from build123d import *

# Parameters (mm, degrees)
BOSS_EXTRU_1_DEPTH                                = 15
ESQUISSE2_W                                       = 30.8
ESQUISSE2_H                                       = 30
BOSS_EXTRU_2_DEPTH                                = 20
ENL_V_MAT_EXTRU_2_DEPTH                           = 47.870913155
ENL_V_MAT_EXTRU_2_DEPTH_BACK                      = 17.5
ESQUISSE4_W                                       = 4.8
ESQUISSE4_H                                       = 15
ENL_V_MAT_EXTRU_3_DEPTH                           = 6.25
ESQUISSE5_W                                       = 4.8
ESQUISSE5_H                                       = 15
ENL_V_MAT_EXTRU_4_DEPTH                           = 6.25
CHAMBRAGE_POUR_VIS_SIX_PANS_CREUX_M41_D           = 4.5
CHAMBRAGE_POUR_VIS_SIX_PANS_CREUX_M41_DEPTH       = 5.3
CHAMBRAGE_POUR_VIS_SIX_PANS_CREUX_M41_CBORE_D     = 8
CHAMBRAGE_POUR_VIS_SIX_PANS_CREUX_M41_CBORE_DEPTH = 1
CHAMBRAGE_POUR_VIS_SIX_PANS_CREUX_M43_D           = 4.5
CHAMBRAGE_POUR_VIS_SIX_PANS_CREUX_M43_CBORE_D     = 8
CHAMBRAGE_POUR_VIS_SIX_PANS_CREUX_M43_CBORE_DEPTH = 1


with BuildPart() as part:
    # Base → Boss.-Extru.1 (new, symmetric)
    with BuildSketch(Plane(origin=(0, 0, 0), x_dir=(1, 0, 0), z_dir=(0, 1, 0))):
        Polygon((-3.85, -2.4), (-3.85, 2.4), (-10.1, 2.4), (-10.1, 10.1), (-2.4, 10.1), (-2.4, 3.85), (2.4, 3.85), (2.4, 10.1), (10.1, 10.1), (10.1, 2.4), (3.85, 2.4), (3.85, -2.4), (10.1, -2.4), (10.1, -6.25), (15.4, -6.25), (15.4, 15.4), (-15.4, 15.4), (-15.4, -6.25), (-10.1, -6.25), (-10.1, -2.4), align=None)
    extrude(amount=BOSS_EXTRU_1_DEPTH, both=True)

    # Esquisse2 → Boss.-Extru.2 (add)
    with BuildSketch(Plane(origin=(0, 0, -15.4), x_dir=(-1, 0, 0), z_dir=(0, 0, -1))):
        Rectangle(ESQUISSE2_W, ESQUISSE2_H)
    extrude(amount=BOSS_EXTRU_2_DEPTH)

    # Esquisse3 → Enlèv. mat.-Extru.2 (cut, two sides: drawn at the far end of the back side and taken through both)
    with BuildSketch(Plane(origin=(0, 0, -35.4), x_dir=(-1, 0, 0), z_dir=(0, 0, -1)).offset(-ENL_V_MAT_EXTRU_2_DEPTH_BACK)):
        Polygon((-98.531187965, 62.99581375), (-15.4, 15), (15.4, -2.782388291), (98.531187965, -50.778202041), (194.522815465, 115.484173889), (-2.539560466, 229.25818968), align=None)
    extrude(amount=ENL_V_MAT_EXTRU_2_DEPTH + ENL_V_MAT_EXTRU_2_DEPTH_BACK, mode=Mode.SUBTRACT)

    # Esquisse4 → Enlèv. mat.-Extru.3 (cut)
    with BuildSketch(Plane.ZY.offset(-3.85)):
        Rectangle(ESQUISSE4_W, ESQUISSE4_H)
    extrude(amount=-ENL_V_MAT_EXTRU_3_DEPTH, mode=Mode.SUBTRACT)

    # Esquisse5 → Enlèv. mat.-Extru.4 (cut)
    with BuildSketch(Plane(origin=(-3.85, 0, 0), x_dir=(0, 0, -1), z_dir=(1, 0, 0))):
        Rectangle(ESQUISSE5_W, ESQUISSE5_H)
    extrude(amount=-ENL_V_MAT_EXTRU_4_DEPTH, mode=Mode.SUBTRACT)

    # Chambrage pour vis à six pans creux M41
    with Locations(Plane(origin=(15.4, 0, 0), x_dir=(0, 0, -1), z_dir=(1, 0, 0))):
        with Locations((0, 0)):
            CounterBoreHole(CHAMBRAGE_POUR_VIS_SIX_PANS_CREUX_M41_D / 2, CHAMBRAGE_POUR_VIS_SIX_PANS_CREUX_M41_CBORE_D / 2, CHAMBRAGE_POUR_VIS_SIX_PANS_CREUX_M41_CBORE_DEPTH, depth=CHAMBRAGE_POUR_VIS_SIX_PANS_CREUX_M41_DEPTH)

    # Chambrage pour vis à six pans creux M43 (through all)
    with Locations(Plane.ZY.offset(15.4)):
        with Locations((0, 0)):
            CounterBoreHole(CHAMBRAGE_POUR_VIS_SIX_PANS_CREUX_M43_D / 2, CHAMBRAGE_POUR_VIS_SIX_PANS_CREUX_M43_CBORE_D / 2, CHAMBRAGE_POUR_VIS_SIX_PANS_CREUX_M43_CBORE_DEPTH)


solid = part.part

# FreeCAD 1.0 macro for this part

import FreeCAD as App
import Part
import Sketcher
Q = App.Units.Quantity

doc = App.newDocument("Part")
body = doc.addObject("PartDesign::Body", "Body")

sketch1 = doc.addObject("Sketcher::SketchObject", "Sketch")
body.addObject(sketch1)
sketch1.AttachmentSupport = (doc.XZ_Plane, [""])
sketch1.MapMode = "FlatFace"
sketch1.addGeometry([
    Part.LineSegment(App.Vector(-3.9, 2.4, 0), App.Vector(-3.9, -2.4, 0)),
    Part.LineSegment(App.Vector(-3.9, -2.4, 0), App.Vector(-10.1, -2.4, 0)),
    Part.LineSegment(App.Vector(-10.1, -2.4, 0), App.Vector(-10.1, -10.1, 0)),
    Part.LineSegment(App.Vector(-10.1, -10.1, 0), App.Vector(-2.4, -10.1, 0)),
    Part.LineSegment(App.Vector(-2.4, -10.1, 0), App.Vector(-2.4, -3.9, 0)),
    Part.LineSegment(App.Vector(-2.4, -3.9, 0), App.Vector(2.4, -3.9, 0)),
    Part.LineSegment(App.Vector(2.4, -3.9, 0), App.Vector(2.4, -10.1, 0)),
    Part.LineSegment(App.Vector(2.4, -10.1, 0), App.Vector(10.1, -10.1, 0)),
    Part.LineSegment(App.Vector(10.1, -10.1, 0), App.Vector(10.1, -2.4, 0)),
    Part.LineSegment(App.Vector(10.1, -2.4, 0), App.Vector(3.9, -2.4, 0)),
    Part.LineSegment(App.Vector(3.9, -2.4, 0), App.Vector(3.9, 2.4, 0)),
    Part.LineSegment(App.Vector(3.9, 2.4, 0), App.Vector(10.1, 2.4, 0)),
    Part.LineSegment(App.Vector(10.1, 2.4, 0), App.Vector(10.1, 6.2, 0)),
    Part.LineSegment(App.Vector(10.1, 6.2, 0), App.Vector(15.4, 6.2, 0)),
    Part.LineSegment(App.Vector(15.4, 6.2, 0), App.Vector(15.4, -15.4, 0)),
    Part.LineSegment(App.Vector(15.4, -15.4, 0), App.Vector(-15.4, -15.4, 0)),
    Part.LineSegment(App.Vector(-15.4, -15.4, 0), App.Vector(-15.4, 6.2, 0)),
    Part.LineSegment(App.Vector(-15.4, 6.2, 0), App.Vector(-10.1, 6.2, 0)),
    Part.LineSegment(App.Vector(-10.1, 6.2, 0), App.Vector(-10.1, 2.4, 0)),
    Part.LineSegment(App.Vector(-10.1, 2.4, 0), App.Vector(-3.9, 2.4, 0)),
], False)
sketch1.addConstraint([
    Sketcher.Constraint("Coincident", 0, 2, 1, 1),
    Sketcher.Constraint("Coincident", 1, 2, 2, 1),
    Sketcher.Constraint("Coincident", 2, 2, 3, 1),
    Sketcher.Constraint("Coincident", 3, 2, 4, 1),
    Sketcher.Constraint("Coincident", 4, 2, 5, 1),
    Sketcher.Constraint("Coincident", 5, 2, 6, 1),
    Sketcher.Constraint("Coincident", 6, 2, 7, 1),
    Sketcher.Constraint("Coincident", 7, 2, 8, 1),
    Sketcher.Constraint("Coincident", 8, 2, 9, 1),
    Sketcher.Constraint("Coincident", 9, 2, 10, 1),
    Sketcher.Constraint("Coincident", 10, 2, 11, 1),
    Sketcher.Constraint("Coincident", 11, 2, 12, 1),
    Sketcher.Constraint("Coincident", 12, 2, 13, 1),
    Sketcher.Constraint("Coincident", 13, 2, 14, 1),
    Sketcher.Constraint("Coincident", 14, 2, 15, 1),
    Sketcher.Constraint("Coincident", 15, 2, 16, 1),
    Sketcher.Constraint("Coincident", 16, 2, 17, 1),
    Sketcher.Constraint("Coincident", 17, 2, 18, 1),
    Sketcher.Constraint("Coincident", 18, 2, 19, 1),
    Sketcher.Constraint("Coincident", 19, 2, 0, 1),
    Sketcher.Constraint("Vertical", 0),
    Sketcher.Constraint("Horizontal", 1),
    Sketcher.Constraint("Vertical", 2),
    Sketcher.Constraint("Horizontal", 3),
    Sketcher.Constraint("Vertical", 4),
    Sketcher.Constraint("Horizontal", 5),
    Sketcher.Constraint("Vertical", 6),
    Sketcher.Constraint("Horizontal", 7),
    Sketcher.Constraint("Vertical", 8),
    Sketcher.Constraint("Horizontal", 9),
    Sketcher.Constraint("Vertical", 10),
    Sketcher.Constraint("Horizontal", 11),
    Sketcher.Constraint("Vertical", 12),
    Sketcher.Constraint("Horizontal", 13),
    Sketcher.Constraint("Vertical", 14),
    Sketcher.Constraint("Horizontal", 15),
    Sketcher.Constraint("Vertical", 16),
    Sketcher.Constraint("Horizontal", 17),
    Sketcher.Constraint("Vertical", 18),
    Sketcher.Constraint("Horizontal", 19),
    Sketcher.Constraint("Symmetric", 0, 2, 10, 2, -1, 1),
    Sketcher.Constraint("Symmetric", 8, 2, 18, 2, -1, 1),
    Sketcher.Constraint("Symmetric", 3, 2, 6, 2, -2),
    Sketcher.Constraint("Symmetric", 1, 2, 8, 2, -2),
    Sketcher.Constraint("Symmetric", 13, 2, 16, 2, -2),
    Sketcher.Constraint("Vertical", 8, 2, 11, 2),
    Sketcher.Constraint("Equal", 5, 0),
    Sketcher.Constraint("Equal", 7, 2),
    Sketcher.Constraint("Equal", 19, 4),
    Sketcher.Constraint("DistanceX", 3, 1, 3, 2, Q("7.7 mm")),
    Sketcher.Constraint("DistanceX", 5, 1, 5, 2, Q("4.8 mm")),
    Sketcher.Constraint("DistanceX", 13, 1, 13, 2, Q("5.3 mm")),
    Sketcher.Constraint("DistanceY", 14, 2, 8, 2, Q("13 mm")),
    Sketcher.Constraint("DistanceX", 1, 2, 1, 1, Q("6.25 mm")),
    Sketcher.Constraint("DistanceY", 12, 1, 12, 2, Q("3.85 mm")),
])
pad1 = doc.addObject("PartDesign::Pad", "Pad")
body.addObject(pad1)
pad1.Profile = sketch1
pad1.Length = 30
pad1.Midplane = True

sketch2 = doc.addObject("Sketcher::SketchObject", "Sketch001")
body.addObject(sketch2)
sketch2.AttachmentSupport = (doc.XY_Plane, [""])
sketch2.MapMode = "FlatFace"
sketch2.AttachmentOffset = App.Placement(App.Vector(0, 0, -15.4), App.Rotation())
sketch2.addGeometry([
    Part.LineSegment(App.Vector(15, 15, 0), App.Vector(15, -15, 0)),
    Part.LineSegment(App.Vector(15, -15, 0), App.Vector(-15, -15, 0)),
    Part.LineSegment(App.Vector(-15, -15, 0), App.Vector(-15, 15, 0)),
    Part.LineSegment(App.Vector(-15, 15, 0), App.Vector(15, 15, 0)),
], False)
sketch2.addConstraint([
    Sketcher.Constraint("Coincident", 0, 2, 1, 1),
    Sketcher.Constraint("Coincident", 1, 2, 2, 1),
    Sketcher.Constraint("Coincident", 2, 2, 3, 1),
    Sketcher.Constraint("Coincident", 3, 2, 0, 1),
    Sketcher.Constraint("Vertical", 0),
    Sketcher.Constraint("Horizontal", 1),
    Sketcher.Constraint("Vertical", 2),
    Sketcher.Constraint("Horizontal", 3),
    Sketcher.Constraint("Symmetric", 0, 2, 2, 2, -1, 1),
    Sketcher.Constraint("DistanceY", 0, 2, 0, 1, Q("30 mm")),
    Sketcher.Constraint("DistanceX", 1, 2, 1, 1, Q("30.8 mm")),
])
pad2 = doc.addObject("PartDesign::Pad", "Pad001")
body.addObject(pad2)
pad2.Profile = sketch2
pad2.Length = 20
pad2.Reversed = True

sketch3 = doc.addObject("Sketcher::SketchObject", "Sketch002")
body.addObject(sketch3)
sketch3.AttachmentSupport = (doc.XY_Plane, [""])
sketch3.MapMode = "FlatFace"
sketch3.AttachmentOffset = App.Placement(App.Vector(0, 0, -35.4), App.Rotation())
sketch3.addGeometry([
    Part.LineSegment(App.Vector(99, 63, 0), App.Vector(15, 15, 0)),
    Part.LineSegment(App.Vector(15, 15, 0), App.Vector(-15, -3, 0)),
    Part.LineSegment(App.Vector(-15, -3, 0), App.Vector(-99, -51, 0)),
    Part.LineSegment(App.Vector(-99, -51, 0), App.Vector(-195, 115, 0)),
    Part.LineSegment(App.Vector(-195, 115, 0), App.Vector(3, 229, 0)),
    Part.LineSegment(App.Vector(3, 229, 0), App.Vector(99, 63, 0)),
], False)
sketch3.addConstraint([
    Sketcher.Constraint("Coincident", 0, 2, 1, 1),
    Sketcher.Constraint("Coincident", 1, 2, 2, 1),
    Sketcher.Constraint("Coincident", 2, 2, 3, 1),
    Sketcher.Constraint("Coincident", 3, 2, 4, 1),
    Sketcher.Constraint("Coincident", 4, 2, 5, 1),
    Sketcher.Constraint("Coincident", 5, 2, 0, 1),
    Sketcher.Constraint("Parallel", 0, 1),
    Sketcher.Constraint("Parallel", 1, 2),
    Sketcher.Constraint("Perpendicular", 2, 3),
    Sketcher.Constraint("Perpendicular", 3, 4),
    Sketcher.Constraint("Perpendicular", 4, 5),
    Sketcher.Constraint("Equal", 0, 2),
    Sketcher.Constraint("Angle", 0, Q("-150 deg")),
    Sketcher.Constraint("DistanceY", -1, 1, 0, 2, Q("15 mm")),
    Sketcher.Constraint("DistanceX", -1, 1, 0, 2, Q("15.4 mm")),
    Sketcher.Constraint("DistanceX", 1, 2, -1, 1, Q("15.4 mm")),
    Sketcher.Constraint("Distance", 4, Q("227.548032 mm")),
    Sketcher.Constraint("DistanceX", -1, 1, 4, 2, Q("2.53956 mm")),
])
pocket1 = doc.addObject("PartDesign::Pocket", "Pocket")
body.addObject(pocket1)
pocket1.Profile = sketch3
pocket1.Type = "TwoLengths"
pocket1.Length = 47.870913
pocket1.Length2 = 17.5

sketch4 = doc.addObject("Sketcher::SketchObject", "Sketch003")
body.addObject(sketch4)
sketch4.AttachmentSupport = (doc.YZ_Plane, [""])
sketch4.MapMode = "FlatFace"
sketch4.AttachmentOffset = App.Placement(App.Vector(0, 0, 3.85), App.Rotation())
sketch4.addGeometry([
    Part.LineSegment(App.Vector(7.5, -2.4, 0), App.Vector(-7.5, -2.4, 0)),
    Part.LineSegment(App.Vector(-7.5, -2.4, 0), App.Vector(-7.5, 2.4, 0)),
    Part.LineSegment(App.Vector(-7.5, 2.4, 0), App.Vector(7.5, 2.4, 0)),
    Part.LineSegment(App.Vector(7.5, 2.4, 0), App.Vector(7.5, -2.4, 0)),
], False)
sketch4.addConstraint([
    Sketcher.Constraint("Coincident", 0, 2, 1, 1),
    Sketcher.Constraint("Coincident", 1, 2, 2, 1),
    Sketcher.Constraint("Coincident", 2, 2, 3, 1),
    Sketcher.Constraint("Coincident", 3, 2, 0, 1),
    Sketcher.Constraint("Horizontal", 0),
    Sketcher.Constraint("Vertical", 1),
    Sketcher.Constraint("Horizontal", 2),
    Sketcher.Constraint("Vertical", 3),
    Sketcher.Constraint("Symmetric", 0, 2, 2, 2, -1, 1),
    Sketcher.Constraint("DistanceX", 0, 2, 0, 1, Q("15 mm")),
    Sketcher.Constraint("DistanceY", 1, 1, 1, 2, Q("4.8 mm")),
])
pocket2 = doc.addObject("PartDesign::Pocket", "Pocket001")
body.addObject(pocket2)
pocket2.Profile = sketch4
pocket2.Length = 6.25
pocket2.Reversed = True

sketch5 = doc.addObject("Sketcher::SketchObject", "Sketch004")
body.addObject(sketch5)
sketch5.AttachmentSupport = (doc.YZ_Plane, [""])
sketch5.MapMode = "FlatFace"
sketch5.AttachmentOffset = App.Placement(App.Vector(0, 0, -3.85), App.Rotation())
sketch5.addGeometry([
    Part.LineSegment(App.Vector(7.5, 2.4, 0), App.Vector(-7.5, 2.4, 0)),
    Part.LineSegment(App.Vector(-7.5, 2.4, 0), App.Vector(-7.5, -2.4, 0)),
    Part.LineSegment(App.Vector(-7.5, -2.4, 0), App.Vector(7.5, -2.4, 0)),
    Part.LineSegment(App.Vector(7.5, -2.4, 0), App.Vector(7.5, 2.4, 0)),
], False)
sketch5.addConstraint([
    Sketcher.Constraint("Coincident", 0, 2, 1, 1),
    Sketcher.Constraint("Coincident", 1, 2, 2, 1),
    Sketcher.Constraint("Coincident", 2, 2, 3, 1),
    Sketcher.Constraint("Coincident", 3, 2, 0, 1),
    Sketcher.Constraint("Horizontal", 0),
    Sketcher.Constraint("Vertical", 1),
    Sketcher.Constraint("Horizontal", 2),
    Sketcher.Constraint("Vertical", 3),
    Sketcher.Constraint("Symmetric", 0, 2, 2, 2, -1, 1),
    Sketcher.Constraint("DistanceX", 0, 2, 0, 1, Q("15 mm")),
    Sketcher.Constraint("DistanceY", 1, 2, 1, 1, Q("4.8 mm")),
])
pocket3 = doc.addObject("PartDesign::Pocket", "Pocket002")
body.addObject(pocket3)
pocket3.Profile = sketch5
pocket3.Length = 6.25

sketch6 = doc.addObject("Sketcher::SketchObject", "Sketch005")
body.addObject(sketch6)
sketch6.AttachmentSupport = (doc.YZ_Plane, [""])
sketch6.MapMode = "FlatFace"
sketch6.AttachmentOffset = App.Placement(App.Vector(0, 0, 15.4), App.Rotation())
sketch6.addGeometry(Part.Circle(App.Vector(0, 0, 0), App.Vector(0, 0, 1), 2.2), False)
sketch6.addConstraint([
    Sketcher.Constraint("Coincident", 0, 3, -1, 1),
    Sketcher.Constraint("Diameter", 0, Q("4.5 mm")),
])
doc.recompute()
hole = doc.addObject("PartDesign::Hole", "Hole")
body.addObject(hole)
hole.Profile = sketch6
hole.ThreadType = "None"
hole.Diameter = 4.5
hole.DepthType = "Dimension"
hole.Depth = 5.3
hole.DrillPoint = "Flat"
hole.HoleCutType = "Counterbore"
hole.HoleCutDiameter = 8
hole.HoleCutDepth = 1

sketch7 = doc.addObject("Sketcher::SketchObject", "Sketch006")
body.addObject(sketch7)
sketch7.AttachmentSupport = (doc.YZ_Plane, [""])
sketch7.MapMode = "FlatFace"
sketch7.AttachmentOffset = App.Placement(App.Vector(0, 0, -15.4), App.Rotation())
sketch7.addGeometry(Part.Circle(App.Vector(0, 0, 0), App.Vector(0, 0, 1), 2.2), False)
sketch7.addConstraint([
    Sketcher.Constraint("Coincident", 0, 3, -1, 1),
    Sketcher.Constraint("Diameter", 0, Q("4.5 mm")),
])
doc.recompute()
hole2 = doc.addObject("PartDesign::Hole", "Hole001")
body.addObject(hole2)
hole2.Profile = sketch7
hole2.ThreadType = "None"
hole2.Diameter = 4.5
hole2.DepthType = "ThroughAll"
hole2.HoleCutType = "Counterbore"
hole2.HoleCutDiameter = 8
hole2.HoleCutDepth = 1
hole2.Reversed = True

doc.recompute()
